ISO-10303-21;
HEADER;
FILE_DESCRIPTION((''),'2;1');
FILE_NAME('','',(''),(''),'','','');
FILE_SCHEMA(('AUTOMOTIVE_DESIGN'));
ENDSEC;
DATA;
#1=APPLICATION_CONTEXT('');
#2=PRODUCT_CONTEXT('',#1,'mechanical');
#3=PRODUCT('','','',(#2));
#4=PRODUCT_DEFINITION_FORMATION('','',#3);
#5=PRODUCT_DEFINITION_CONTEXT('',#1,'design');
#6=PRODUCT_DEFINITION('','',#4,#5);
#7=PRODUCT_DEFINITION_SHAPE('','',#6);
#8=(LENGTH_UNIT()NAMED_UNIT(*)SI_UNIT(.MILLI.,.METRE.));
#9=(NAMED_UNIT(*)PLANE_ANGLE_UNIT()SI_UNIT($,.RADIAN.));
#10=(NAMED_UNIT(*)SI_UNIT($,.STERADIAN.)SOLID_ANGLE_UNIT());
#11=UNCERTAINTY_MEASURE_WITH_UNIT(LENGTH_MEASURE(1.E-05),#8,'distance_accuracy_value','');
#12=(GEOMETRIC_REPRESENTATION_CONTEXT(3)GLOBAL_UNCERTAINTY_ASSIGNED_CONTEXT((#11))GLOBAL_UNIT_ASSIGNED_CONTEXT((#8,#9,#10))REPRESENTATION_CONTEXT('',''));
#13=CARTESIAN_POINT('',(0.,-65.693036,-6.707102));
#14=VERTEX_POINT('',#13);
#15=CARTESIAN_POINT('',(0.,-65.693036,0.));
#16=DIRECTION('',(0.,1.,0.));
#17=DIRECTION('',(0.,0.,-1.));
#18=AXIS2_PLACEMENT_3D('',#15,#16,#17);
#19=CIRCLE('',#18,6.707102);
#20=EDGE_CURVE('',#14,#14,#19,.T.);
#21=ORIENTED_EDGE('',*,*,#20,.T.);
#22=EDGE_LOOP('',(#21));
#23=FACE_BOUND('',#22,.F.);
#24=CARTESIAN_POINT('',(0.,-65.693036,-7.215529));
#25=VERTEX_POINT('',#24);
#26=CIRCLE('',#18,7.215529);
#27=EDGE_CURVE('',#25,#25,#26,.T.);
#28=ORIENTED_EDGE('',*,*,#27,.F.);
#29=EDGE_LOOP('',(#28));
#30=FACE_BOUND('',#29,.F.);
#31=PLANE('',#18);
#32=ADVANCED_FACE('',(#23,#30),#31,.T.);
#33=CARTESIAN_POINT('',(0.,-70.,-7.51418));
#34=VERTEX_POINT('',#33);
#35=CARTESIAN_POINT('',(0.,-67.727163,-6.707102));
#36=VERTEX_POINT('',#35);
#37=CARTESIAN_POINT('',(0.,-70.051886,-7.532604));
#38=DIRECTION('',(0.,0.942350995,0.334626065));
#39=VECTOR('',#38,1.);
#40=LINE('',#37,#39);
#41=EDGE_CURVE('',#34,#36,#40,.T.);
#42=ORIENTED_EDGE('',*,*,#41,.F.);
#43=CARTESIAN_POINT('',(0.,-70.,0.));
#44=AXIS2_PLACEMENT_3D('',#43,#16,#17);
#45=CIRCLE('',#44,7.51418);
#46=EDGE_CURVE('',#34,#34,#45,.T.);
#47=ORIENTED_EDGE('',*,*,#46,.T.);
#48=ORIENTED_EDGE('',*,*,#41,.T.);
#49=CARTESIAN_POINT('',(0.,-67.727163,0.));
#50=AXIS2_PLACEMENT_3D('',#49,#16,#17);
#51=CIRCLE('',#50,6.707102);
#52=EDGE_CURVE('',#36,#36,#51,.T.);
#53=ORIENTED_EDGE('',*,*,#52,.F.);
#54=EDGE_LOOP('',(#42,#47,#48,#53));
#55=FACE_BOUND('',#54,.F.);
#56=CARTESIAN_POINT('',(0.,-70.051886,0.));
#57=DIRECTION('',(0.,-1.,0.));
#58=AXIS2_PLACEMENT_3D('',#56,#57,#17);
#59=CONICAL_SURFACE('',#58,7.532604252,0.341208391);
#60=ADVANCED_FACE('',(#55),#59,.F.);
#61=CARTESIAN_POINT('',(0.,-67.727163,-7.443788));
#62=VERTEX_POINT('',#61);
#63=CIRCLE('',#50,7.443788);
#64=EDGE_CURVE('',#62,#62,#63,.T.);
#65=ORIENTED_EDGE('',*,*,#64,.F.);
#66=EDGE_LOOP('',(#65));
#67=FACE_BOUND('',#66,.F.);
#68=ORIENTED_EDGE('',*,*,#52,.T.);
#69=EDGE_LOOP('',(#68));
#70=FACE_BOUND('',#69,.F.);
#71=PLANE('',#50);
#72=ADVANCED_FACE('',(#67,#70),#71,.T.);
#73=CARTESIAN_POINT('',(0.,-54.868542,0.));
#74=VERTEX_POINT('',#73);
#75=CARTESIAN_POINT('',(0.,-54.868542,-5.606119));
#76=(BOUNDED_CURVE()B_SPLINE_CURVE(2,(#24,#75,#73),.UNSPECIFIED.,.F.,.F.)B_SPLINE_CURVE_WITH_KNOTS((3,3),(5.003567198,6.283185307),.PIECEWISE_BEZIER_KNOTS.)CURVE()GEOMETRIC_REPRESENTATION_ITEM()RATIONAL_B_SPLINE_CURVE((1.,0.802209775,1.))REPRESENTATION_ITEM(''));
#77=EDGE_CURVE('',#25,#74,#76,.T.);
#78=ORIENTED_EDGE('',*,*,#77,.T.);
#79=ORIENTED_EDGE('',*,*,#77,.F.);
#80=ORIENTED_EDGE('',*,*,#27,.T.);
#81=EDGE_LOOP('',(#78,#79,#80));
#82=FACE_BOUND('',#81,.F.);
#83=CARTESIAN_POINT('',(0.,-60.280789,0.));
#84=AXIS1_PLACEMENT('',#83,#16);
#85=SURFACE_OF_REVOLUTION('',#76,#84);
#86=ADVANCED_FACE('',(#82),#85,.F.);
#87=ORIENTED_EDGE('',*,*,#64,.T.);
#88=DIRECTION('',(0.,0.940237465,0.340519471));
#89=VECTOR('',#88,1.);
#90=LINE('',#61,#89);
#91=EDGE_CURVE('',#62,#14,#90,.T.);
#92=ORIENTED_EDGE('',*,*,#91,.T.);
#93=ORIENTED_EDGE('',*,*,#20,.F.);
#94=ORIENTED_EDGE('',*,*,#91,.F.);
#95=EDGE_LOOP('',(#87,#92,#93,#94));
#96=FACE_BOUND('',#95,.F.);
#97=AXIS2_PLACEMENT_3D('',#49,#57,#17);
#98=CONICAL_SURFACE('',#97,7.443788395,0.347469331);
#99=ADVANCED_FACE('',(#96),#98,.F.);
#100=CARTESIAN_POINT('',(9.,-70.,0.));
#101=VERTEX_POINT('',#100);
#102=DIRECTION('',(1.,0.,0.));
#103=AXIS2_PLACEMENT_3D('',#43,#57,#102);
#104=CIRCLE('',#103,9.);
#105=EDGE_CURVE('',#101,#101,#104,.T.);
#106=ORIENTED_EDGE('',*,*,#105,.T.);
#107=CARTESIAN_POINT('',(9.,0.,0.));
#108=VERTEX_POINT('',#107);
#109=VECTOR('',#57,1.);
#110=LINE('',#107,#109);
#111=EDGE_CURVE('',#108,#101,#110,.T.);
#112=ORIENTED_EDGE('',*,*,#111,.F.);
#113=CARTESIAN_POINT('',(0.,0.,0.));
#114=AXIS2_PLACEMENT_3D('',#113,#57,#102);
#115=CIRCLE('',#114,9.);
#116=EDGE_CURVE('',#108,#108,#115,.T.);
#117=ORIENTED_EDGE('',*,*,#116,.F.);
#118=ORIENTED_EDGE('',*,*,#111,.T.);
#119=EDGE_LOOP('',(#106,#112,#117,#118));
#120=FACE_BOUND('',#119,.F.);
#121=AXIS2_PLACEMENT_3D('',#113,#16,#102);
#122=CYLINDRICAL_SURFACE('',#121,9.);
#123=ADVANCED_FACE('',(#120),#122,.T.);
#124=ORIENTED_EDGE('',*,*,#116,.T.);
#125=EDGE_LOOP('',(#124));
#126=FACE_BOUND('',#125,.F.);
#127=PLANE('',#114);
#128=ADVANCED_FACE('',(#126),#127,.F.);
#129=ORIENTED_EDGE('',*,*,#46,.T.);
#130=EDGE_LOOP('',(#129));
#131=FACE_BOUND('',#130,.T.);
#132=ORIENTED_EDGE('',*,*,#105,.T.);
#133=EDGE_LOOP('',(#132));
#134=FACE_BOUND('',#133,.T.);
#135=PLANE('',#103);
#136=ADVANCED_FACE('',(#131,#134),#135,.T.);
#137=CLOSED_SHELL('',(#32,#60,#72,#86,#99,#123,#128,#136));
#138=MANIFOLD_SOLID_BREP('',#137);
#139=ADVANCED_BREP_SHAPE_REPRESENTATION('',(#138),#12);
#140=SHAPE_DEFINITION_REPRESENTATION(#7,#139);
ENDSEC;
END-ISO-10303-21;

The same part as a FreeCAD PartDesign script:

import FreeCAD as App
import Part
import Sketcher

doc = App.newDocument("Part")
body = doc.addObject("PartDesign::Body", "Body")

# Sketch on XZ plane
sketch1 = body.newObject("Sketcher::SketchObject", "Sketch")
sketch1.AttachmentSupport = (doc.getObject("XZ_Plane"), [""])
sketch1.MapMode = "FlatFace"
sketch1.addGeometry(Part.Circle(App.Vector(0, 0, 0), App.Vector(0, 0, 1), 9), False)
sketch1.addConstraint(Sketcher.Constraint("Coincident", 0, 3, -1, 1))
sketch1.addConstraint(Sketcher.Constraint("Diameter", 0, 18.0))
pad1 = body.newObject("PartDesign::Pad", "Pad")
pad1.Profile = sketch1
pad1.Length = 70

# Sketch on YZ plane
sketch2 = body.newObject("Sketcher::SketchObject", "Sketch001")
sketch2.AttachmentSupport = (doc.getObject("YZ_Plane"), [""])
sketch2.MapMode = "FlatFace"
sketch2.addGeometry(Part.LineSegment(App.Vector(-65.693036, -6.707102, 0), App.Vector(-65.693036, -7.215529, 0)), False)
sketch2.addGeometry(Part.BSplineCurve([App.Vector(-65.693036, -7.215529, 0), App.Vector(-54.868542, -5.606119, 0), App.Vector(-54.868542, 0, 0)], [3, 3], [5.003567198, 6.283185307], False, 2, [1, 0.802209775, 1], False), False)
sketch2.addGeometry(Part.LineSegment(App.Vector(-54.868542, 0, 0), App.Vector(-70.051886, 0, 0)), False)
sketch2.addGeometry(Part.LineSegment(App.Vector(-70.051886, 0, 0), App.Vector(-70.051886, -7.532604, 0)), False)
sketch2.addGeometry(Part.LineSegment(App.Vector(-70.051886, -7.532604, 0), App.Vector(-67.727163, -6.707102, 0)), False)
sketch2.addGeometry(Part.LineSegment(App.Vector(-67.727163, -6.707102, 0), App.Vector(-67.727163, -7.443788, 0)), False)
sketch2.addGeometry(Part.LineSegment(App.Vector(-67.727163, -7.443788, 0), App.Vector(-65.693036, -6.707102, 0)), False)
sketch2.addConstraint(Sketcher.Constraint("Block", 1))
sketch2.addConstraint(Sketcher.Constraint("Coincident", 0, 2, 1, 1))
sketch2.addConstraint(Sketcher.Constraint("Coincident", 1, 2, 2, 1))
sketch2.addConstraint(Sketcher.Constraint("Coincident", 2, 2, 3, 1))
sketch2.addConstraint(Sketcher.Constraint("Coincident", 3, 2, 4, 1))
sketch2.addConstraint(Sketcher.Constraint("Coincident", 4, 2, 5, 1))
sketch2.addConstraint(Sketcher.Constraint("Coincident", 5, 2, 6, 1))
sketch2.addConstraint(Sketcher.Constraint("Coincident", 6, 2, 0, 1))
sketch2.addConstraint(Sketcher.Constraint("Vertical", 0))
sketch2.addConstraint(Sketcher.Constraint("Horizontal", 2))
sketch2.addConstraint(Sketcher.Constraint("Vertical", 3))
sketch2.addConstraint(Sketcher.Constraint("Vertical", 5))
sketch2.addConstraint(Sketcher.Constraint("Horizontal", 4, 2, 6, 2))
sketch2.addConstraint(Sketcher.Constraint("Distance", 4, 2.466939))
sketch2.addConstraint(Sketcher.Constraint("Distance", 6, 2.163419))
sketch2.addConstraint(Sketcher.Constraint("DistanceX", 2, 2, 2, 1, 15.183344))
sketch2.addConstraint(Sketcher.Constraint("DistanceY", 0, 2, 0, 1, 0.508427))
sketch2.addConstraint(Sketcher.Constraint("DistanceY", 3, 2, 3, 1, 7.532604))
groove = body.newObject("PartDesign::Groove", "Groove")
groove.Profile = sketch2
groove.ReferenceAxis = (sketch2, ["H_Axis"])
groove.Angle = 360

doc.recompute()
